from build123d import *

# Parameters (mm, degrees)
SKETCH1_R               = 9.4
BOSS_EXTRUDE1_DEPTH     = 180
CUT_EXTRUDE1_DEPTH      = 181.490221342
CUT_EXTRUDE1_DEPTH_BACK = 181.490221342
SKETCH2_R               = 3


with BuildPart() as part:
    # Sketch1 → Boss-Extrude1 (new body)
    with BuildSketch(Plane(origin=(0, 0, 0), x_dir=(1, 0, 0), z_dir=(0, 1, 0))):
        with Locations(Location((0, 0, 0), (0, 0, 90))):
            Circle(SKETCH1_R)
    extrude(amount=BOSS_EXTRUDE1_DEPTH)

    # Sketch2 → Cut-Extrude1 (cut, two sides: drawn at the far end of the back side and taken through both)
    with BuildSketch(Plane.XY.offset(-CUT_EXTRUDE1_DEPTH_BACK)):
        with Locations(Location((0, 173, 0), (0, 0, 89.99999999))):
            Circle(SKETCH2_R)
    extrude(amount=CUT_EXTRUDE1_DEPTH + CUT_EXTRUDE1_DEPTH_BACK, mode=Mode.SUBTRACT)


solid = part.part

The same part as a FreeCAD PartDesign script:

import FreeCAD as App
import Part
import Sketcher
from FreeCAD import Vector

doc = App.newDocument("Part")
body = doc.addObject("PartDesign::Body", "Body")

# Sketch on XZ plane
sketch1 = doc.addObject("Sketcher::SketchObject", "Sketch")
body.addObject(sketch1)
sketch1.AttachmentSupport = (doc.XZ_Plane, [""])
sketch1.MapMode = "FlatFace"
sketch1.addGeometry(Part.Circle(Vector(0, 0, 0), Vector(0, 0, 1), 9), False)
sketch1.addConstraint([
    Sketcher.Constraint("Coincident", 0, 3, -1, 1),
    Sketcher.Constraint("Diameter", 0, 18.8),
])
pad1 = doc.addObject("PartDesign::Pad", "Pad")
body.addObject(pad1)
pad1.Profile = sketch1
pad1.Length = 180
pad1.Reversed = True

# Sketch on XY plane
sketch2 = doc.addObject("Sketcher::SketchObject", "Sketch001")
body.addObject(sketch2)
sketch2.AttachmentSupport = (doc.XY_Plane, [""])
sketch2.MapMode = "FlatFace"
sketch2.addGeometry(Part.Circle(Vector(0, 173, 0), Vector(0, 0, 1), 3), False)
sketch2.addConstraint([
    Sketcher.Constraint("PointOnObject", 0, 3, -2),
    Sketcher.Constraint("Diameter", 0, 6.0),
    Sketcher.Constraint("DistanceY", -1, 1, 0, 3, 173.0),
])
pocket1 = doc.addObject("PartDesign::Pocket", "Pocket")
body.addObject(pocket1)
pocket1.Profile = sketch2
pocket1.Type = "ThroughAll"
pocket1.Midplane = True

doc.recompute()
